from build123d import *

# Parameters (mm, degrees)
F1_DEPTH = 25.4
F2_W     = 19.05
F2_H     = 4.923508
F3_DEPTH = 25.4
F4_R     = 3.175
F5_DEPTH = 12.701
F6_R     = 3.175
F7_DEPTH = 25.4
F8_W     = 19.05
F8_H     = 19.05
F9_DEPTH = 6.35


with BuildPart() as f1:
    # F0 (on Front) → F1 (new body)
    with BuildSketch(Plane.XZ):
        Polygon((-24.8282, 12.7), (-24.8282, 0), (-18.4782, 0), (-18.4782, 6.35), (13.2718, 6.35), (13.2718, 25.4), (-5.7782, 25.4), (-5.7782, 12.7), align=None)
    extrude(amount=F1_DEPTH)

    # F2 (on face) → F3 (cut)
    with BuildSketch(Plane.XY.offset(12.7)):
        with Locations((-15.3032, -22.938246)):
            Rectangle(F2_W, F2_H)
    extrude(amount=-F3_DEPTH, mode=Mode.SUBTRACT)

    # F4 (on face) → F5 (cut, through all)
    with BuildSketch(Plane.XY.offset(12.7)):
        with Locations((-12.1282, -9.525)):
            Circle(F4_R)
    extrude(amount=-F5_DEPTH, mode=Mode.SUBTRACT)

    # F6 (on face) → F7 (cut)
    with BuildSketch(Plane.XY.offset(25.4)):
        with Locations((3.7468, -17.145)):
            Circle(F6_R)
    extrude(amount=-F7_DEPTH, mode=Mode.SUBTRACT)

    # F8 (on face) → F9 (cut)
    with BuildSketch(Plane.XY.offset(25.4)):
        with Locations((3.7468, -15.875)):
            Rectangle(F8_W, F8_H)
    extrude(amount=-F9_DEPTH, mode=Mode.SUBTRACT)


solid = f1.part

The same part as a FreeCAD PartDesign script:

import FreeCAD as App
import Part
import Sketcher
Q = App.Units.Quantity


def add_polygon(sketch, points):
    """Adds a closed chain of lines whose ends are joined by coincident constraints."""
    first, n = sketch.GeometryCount, len(points)
    for a, b in zip(points, points[1:] + points[:1]):
        sketch.addGeometry(Part.LineSegment(App.Vector(*a, 0), App.Vector(*b, 0)), False)
    for i in range(n):
        sketch.addConstraint(Sketcher.Constraint("Coincident", first + i, 2, first + (i + 1) % n, 1))

doc = App.newDocument("Part")
body = doc.addObject("PartDesign::Body", "Body")

# Sketch on XZ plane
sketch1 = body.newObject("Sketcher::SketchObject", "Sketch")
sketch1.AttachmentSupport = (doc.getObject("XZ_Plane"), [""])
sketch1.MapMode = "FlatFace"
add_polygon(sketch1, [(-24.8282, 12.7), (-24.8282, 0), (-18.4782, 0), (-18.4782, 6.35), (13.2718, 6.35), (13.2718, 25.4), (-5.7782, 25.4), (-5.7782, 12.7)])  # lines 0-7
sketch1.addConstraint([
    Sketcher.Constraint("Vertical", 0),
    Sketcher.Constraint("Horizontal", 1),
    Sketcher.Constraint("Vertical", 2),
    Sketcher.Constraint("Horizontal", 3),
    Sketcher.Constraint("Vertical", 4),
    Sketcher.Constraint("Horizontal", 5),
    Sketcher.Constraint("Vertical", 6),
    Sketcher.Constraint("Horizontal", 7),
    Sketcher.Constraint("PointOnObject", 0, 2, -1),
    Sketcher.Constraint("Equal", 5, 7),
    Sketcher.Constraint("Equal", 1, 2),
    Sketcher.Constraint("Equal", 7, 4),
    Sketcher.Constraint("Equal", 0, 6),
    Sketcher.Constraint("DistanceY", 0, 2, 0, 1, Q("0.5 in")),
    Sketcher.Constraint("DistanceX", 1, 1, 1, 2, Q("0.25 in")),
    Sketcher.Constraint("DistanceX", 0, 2, -1, 1, 24.8282),
])
pad1 = body.newObject("PartDesign::Pad", "Pad")
pad1.Profile = sketch1
pad1.Length = Q("1 in")

# Sketch on XY plane
sketch2 = body.newObject("Sketcher::SketchObject", "Sketch001")
sketch2.AttachmentSupport = (doc.getObject("XY_Plane"), [""])
sketch2.MapMode = "FlatFace"
sketch2.AttachmentOffset = App.Placement(App.Vector(0, 0, 0.5 * 25.4), App.Rotation())
add_polygon(sketch2, [(-24.8282, -20.476492), (-24.8282, -25.4), (-5.7782, -25.4), (-5.7782, -20.476492)])  # lines 0-3
sketch2.addConstraint([
    Sketcher.Constraint("Vertical", 0),
    Sketcher.Constraint("Horizontal", 1),
    Sketcher.Constraint("Vertical", 2),
    Sketcher.Constraint("Horizontal", 3),
    Sketcher.Constraint("DistanceY", 0, 2, -1, 1, Q("1 in")),
    Sketcher.Constraint("DistanceX", 1, 1, 1, 2, Q("0.75 in")),
    Sketcher.Constraint("DistanceX", 0, 2, -1, 1, 24.8282),
    Sketcher.Constraint("DistanceY", 0, 2, 0, 1, 4.923508),
])
pocket1 = body.newObject("PartDesign::Pocket", "Pocket")
pocket1.Profile = sketch2
pocket1.Length = Q("1 in")

# Sketch on XY plane
sketch3 = body.newObject("Sketcher::SketchObject", "Sketch002")
sketch3.AttachmentSupport = (doc.getObject("XY_Plane"), [""])
sketch3.MapMode = "FlatFace"
sketch3.AttachmentOffset = App.Placement(App.Vector(0, 0, 0.5 * 25.4), App.Rotation())
sketch3.addGeometry(Part.Circle(App.Vector(-12.1282, -9.525, 0), App.Vector(0, 0, 1), 3.175), False)
sketch3.addConstraint([
    Sketcher.Constraint("Diameter", 0, Q("0.25 in")),
    Sketcher.Constraint("DistanceY", 0, 3, -1, 1, Q("0.375 in")),
    Sketcher.Constraint("DistanceX", 0, 3, -1, 1, 12.1282),
])
pocket2 = body.newObject("PartDesign::Pocket", "Pocket001")
pocket2.Profile = sketch3
pocket2.Type = "ThroughAll"

# Sketch on XY plane
sketch4 = body.newObject("Sketcher::SketchObject", "Sketch003")
sketch4.AttachmentSupport = (doc.getObject("XY_Plane"), [""])
sketch4.MapMode = "FlatFace"
sketch4.AttachmentOffset = App.Placement(App.Vector(0, 0, 1 * 25.4), App.Rotation())
sketch4.addGeometry(Part.Circle(App.Vector(3.7468, -17.145, 0), App.Vector(0, 0, 1), 3.175), False)
sketch4.addConstraint([
    Sketcher.Constraint("Diameter", 0, Q("0.25 in")),
    Sketcher.Constraint("DistanceY", 0, 3, -1, 1, Q("0.675 in")),
    Sketcher.Constraint("DistanceX", -1, 1, 0, 3, 3.7468),
])
pocket3 = body.newObject("PartDesign::Pocket", "Pocket002")
pocket3.Profile = sketch4
pocket3.Length = Q("1 in")

# Sketch on XY plane
sketch5 = body.newObject("Sketcher::SketchObject", "Sketch004")
sketch5.AttachmentSupport = (doc.getObject("XY_Plane"), [""])
sketch5.MapMode = "FlatFace"
sketch5.AttachmentOffset = App.Placement(App.Vector(0, 0, 1 * 25.4), App.Rotation())
add_polygon(sketch5, [(-5.7782, -6.35), (-5.7782, -25.4), (13.2718, -25.4), (13.2718, -6.35)])  # lines 0-3
sketch5.addConstraint([
    Sketcher.Constraint("Vertical", 0),
    Sketcher.Constraint("Horizontal", 1),
    Sketcher.Constraint("Vertical", 2),
    Sketcher.Constraint("Horizontal", 3),
    Sketcher.Constraint("Equal", 3, 0),
    Sketcher.Constraint("DistanceY", 0, 2, -1, 1, Q("1 in")),
    Sketcher.Constraint("DistanceX", 1, 1, 1, 2, Q("0.75 in")),
    Sketcher.Constraint("DistanceX", 0, 2, -1, 1, 5.7782),
])
pocket4 = body.newObject("PartDesign::Pocket", "Pocket003")
pocket4.Profile = sketch5
pocket4.Length = Q("0.25 in")

doc.recompute()
